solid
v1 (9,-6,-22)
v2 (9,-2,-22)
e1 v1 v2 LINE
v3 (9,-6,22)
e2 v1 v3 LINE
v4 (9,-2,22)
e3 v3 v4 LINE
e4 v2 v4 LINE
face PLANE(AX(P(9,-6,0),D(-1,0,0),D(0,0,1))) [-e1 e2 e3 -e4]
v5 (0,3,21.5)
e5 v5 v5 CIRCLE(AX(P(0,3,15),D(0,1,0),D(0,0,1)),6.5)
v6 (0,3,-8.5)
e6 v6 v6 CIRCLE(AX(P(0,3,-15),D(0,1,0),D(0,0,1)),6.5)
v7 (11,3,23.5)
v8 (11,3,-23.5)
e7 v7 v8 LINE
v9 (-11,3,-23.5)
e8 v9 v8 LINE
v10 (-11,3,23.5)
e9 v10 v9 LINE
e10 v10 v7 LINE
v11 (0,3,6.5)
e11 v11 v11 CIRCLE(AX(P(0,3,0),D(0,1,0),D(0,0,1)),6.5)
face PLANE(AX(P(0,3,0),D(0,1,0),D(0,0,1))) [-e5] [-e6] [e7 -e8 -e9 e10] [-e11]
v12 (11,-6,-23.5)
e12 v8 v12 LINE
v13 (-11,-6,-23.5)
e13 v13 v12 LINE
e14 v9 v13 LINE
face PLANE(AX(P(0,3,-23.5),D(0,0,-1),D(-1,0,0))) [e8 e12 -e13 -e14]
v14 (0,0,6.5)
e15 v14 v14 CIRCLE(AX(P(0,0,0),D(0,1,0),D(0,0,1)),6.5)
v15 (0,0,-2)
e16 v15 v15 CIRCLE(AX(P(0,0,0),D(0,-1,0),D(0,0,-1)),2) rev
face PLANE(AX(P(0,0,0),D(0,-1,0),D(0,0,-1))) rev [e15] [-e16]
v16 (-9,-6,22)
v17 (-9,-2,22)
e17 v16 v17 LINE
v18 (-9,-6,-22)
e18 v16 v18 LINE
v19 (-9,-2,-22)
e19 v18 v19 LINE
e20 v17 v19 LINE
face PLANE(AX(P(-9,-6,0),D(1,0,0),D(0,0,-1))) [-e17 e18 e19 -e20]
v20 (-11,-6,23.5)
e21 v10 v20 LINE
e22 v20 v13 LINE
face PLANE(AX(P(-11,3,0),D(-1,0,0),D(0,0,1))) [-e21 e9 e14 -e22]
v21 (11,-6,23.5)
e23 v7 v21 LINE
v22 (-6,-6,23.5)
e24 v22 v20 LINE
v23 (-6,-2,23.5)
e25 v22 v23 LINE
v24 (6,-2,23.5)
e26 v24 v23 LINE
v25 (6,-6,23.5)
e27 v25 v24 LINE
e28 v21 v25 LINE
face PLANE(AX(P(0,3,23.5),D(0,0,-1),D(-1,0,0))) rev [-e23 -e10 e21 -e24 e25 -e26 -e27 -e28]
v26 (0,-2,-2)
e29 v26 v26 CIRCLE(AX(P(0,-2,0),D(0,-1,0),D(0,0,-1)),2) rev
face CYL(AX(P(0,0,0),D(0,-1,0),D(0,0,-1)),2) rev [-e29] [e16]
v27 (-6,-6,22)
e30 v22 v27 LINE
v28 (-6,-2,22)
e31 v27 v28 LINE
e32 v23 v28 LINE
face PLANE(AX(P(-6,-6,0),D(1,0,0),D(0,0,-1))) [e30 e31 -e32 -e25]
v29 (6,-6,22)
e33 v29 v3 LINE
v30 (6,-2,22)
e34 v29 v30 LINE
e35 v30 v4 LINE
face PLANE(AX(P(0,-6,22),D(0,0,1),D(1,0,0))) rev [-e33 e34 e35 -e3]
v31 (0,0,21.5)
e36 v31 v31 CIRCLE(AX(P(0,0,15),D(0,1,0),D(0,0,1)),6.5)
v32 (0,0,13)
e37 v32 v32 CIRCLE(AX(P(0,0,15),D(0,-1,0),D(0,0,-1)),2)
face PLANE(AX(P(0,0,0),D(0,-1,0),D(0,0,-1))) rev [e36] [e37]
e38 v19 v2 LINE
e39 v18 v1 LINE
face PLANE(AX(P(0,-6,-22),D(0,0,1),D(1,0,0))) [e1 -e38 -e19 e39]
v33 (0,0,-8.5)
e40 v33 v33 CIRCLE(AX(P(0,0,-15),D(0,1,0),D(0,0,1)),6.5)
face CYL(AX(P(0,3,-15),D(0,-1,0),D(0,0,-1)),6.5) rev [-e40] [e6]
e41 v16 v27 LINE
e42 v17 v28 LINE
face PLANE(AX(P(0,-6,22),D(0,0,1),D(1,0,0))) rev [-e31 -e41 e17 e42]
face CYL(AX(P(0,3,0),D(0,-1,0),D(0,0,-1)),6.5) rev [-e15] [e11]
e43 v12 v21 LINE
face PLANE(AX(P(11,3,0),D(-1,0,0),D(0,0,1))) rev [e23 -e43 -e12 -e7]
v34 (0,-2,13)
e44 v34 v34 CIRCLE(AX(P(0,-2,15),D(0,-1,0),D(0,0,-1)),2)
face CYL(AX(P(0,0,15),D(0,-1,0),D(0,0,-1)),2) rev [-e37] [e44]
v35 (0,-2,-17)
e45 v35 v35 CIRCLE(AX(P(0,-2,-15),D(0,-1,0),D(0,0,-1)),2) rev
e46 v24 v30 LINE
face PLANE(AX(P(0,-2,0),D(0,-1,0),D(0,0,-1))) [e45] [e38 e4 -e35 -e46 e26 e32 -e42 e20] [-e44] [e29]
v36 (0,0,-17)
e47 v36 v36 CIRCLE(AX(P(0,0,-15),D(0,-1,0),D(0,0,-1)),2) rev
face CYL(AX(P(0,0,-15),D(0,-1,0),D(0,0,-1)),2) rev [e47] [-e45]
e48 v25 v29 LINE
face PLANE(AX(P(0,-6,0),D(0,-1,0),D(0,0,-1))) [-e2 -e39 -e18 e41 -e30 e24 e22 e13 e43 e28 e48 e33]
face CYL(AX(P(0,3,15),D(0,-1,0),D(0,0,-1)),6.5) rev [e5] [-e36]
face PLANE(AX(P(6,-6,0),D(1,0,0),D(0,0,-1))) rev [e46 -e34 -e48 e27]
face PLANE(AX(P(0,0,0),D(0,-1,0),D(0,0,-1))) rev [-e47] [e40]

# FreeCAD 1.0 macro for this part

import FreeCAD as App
import Part
import Sketcher
from FreeCAD import Vector


def add_polygon(sketch, points):
    """Adds a closed chain of lines whose ends are joined by coincident constraints."""
    first, n = sketch.GeometryCount, len(points)
    for a, b in zip(points, points[1:] + points[:1]):
        sketch.addGeometry(Part.LineSegment(App.Vector(*a, 0), App.Vector(*b, 0)), False)
    for i in range(n):
        sketch.addConstraint(Sketcher.Constraint("Coincident", first + i, 2, first + (i + 1) % n, 1))

doc = App.newDocument("Part")
body = doc.addObject("PartDesign::Body", "Body")

# Sketch on XZ plane
sketch1 = doc.addObject("Sketcher::SketchObject", "Sketch")
body.addObject(sketch1)
sketch1.AttachmentSupport = (doc.XZ_Plane, [""])
sketch1.MapMode = "FlatFace"
add_polygon(sketch1, [(-11, -23.5), (-11, 23.5), (11, 23.5), (11, -23.5)])  # lines 0-3
sketch1.addGeometry(Part.Circle(Vector(0, 15, 0), Vector(0, 0, 1), 6.5), False)  # 4
sketch1.addGeometry(Part.Circle(Vector(0, 0, 0), Vector(0, 0, 1), 6.5), False)  # 5
sketch1.addGeometry(Part.Circle(Vector(0, -15, 0), Vector(0, 0, 1), 6.5), False)  # 6
sketch1.addConstraint([
    Sketcher.Constraint("Vertical", 0),
    Sketcher.Constraint("Horizontal", 1),
    Sketcher.Constraint("Vertical", 2),
    Sketcher.Constraint("Horizontal", 3),
    Sketcher.Constraint("Coincident", 5, 3, -1, 1),
    Sketcher.Constraint("Equal", 4, 5),
    Sketcher.Constraint("Equal", 5, 6),
    Sketcher.Constraint("Symmetric", 4, 3, 6, 3, -1, 1),
    Sketcher.Constraint("Symmetric", 0, 2, 2, 2, -1, 1),
    Sketcher.Constraint("PointOnObject", 4, 3, -2),
    Sketcher.Constraint("Diameter", 4, 13.0),
    Sketcher.Constraint("DistanceX", 1, 1, 1, 2, 22.0),
    Sketcher.Constraint("DistanceY", 0, 1, 0, 2, 47.0),
    Sketcher.Constraint("DistanceY", -1, 1, 4, 3, 15.0),
])
pad1 = doc.addObject("PartDesign::Pad", "Pad")
body.addObject(pad1)
pad1.Profile = sketch1
pad1.Length = 3
pad1.Reversed = True

# Sketch on XZ plane
sketch2 = doc.addObject("Sketcher::SketchObject", "Sketch001")
body.addObject(sketch2)
sketch2.AttachmentSupport = (doc.XZ_Plane, [""])
sketch2.MapMode = "FlatFace"
add_polygon(sketch2, [(-11, 23.5), (-11, -23.5), (11, -23.5), (11, 23.5)])  # lines 0-3
sketch2.addConstraint([
    Sketcher.Constraint("Vertical", 0),
    Sketcher.Constraint("Horizontal", 1),
    Sketcher.Constraint("Vertical", 2),
    Sketcher.Constraint("Horizontal", 3),
    Sketcher.Constraint("Symmetric", 0, 2, 2, 2, -1, 1),
    Sketcher.Constraint("DistanceX", 1, 1, 1, 2, 22.0),
    Sketcher.Constraint("DistanceY", 0, 2, 0, 1, 47.0),
])
pad2 = doc.addObject("PartDesign::Pad", "Pad001")
body.addObject(pad2)
pad2.Profile = sketch2
pad2.Length = 2

# Sketch on XZ plane
sketch3 = doc.addObject("Sketcher::SketchObject", "Sketch002")
body.addObject(sketch3)
sketch3.AttachmentSupport = (doc.XZ_Plane, [""])
sketch3.MapMode = "FlatFace"
sketch3.AttachmentOffset = App.Placement(Vector(0, 0, 2), App.Rotation())
add_polygon(sketch3, [(-9, -22), (-9, 23.5), (-11, 23.5), (-11, -23.5), (11, -23.5), (11, 23.5), (9, 23.5), (9, -22)])  # lines 0-7
sketch3.addConstraint([
    Sketcher.Constraint("Vertical", 0),
    Sketcher.Constraint("Horizontal", 1),
    Sketcher.Constraint("Vertical", 2),
    Sketcher.Constraint("Horizontal", 3),
    Sketcher.Constraint("Vertical", 4),
    Sketcher.Constraint("Horizontal", 5),
    Sketcher.Constraint("Vertical", 6),
    Sketcher.Constraint("Horizontal", 7),
    Sketcher.Constraint("Symmetric", 1, 2, 3, 2, -1, 1),
    Sketcher.Constraint("Symmetric", 0, 2, 5, 2, -2),
    Sketcher.Constraint("DistanceX", 1, 2, 1, 1, 2.0),
    Sketcher.Constraint("DistanceX", 3, 1, 3, 2, 22.0),
    Sketcher.Constraint("DistanceY", 2, 2, 2, 1, 47.0),
    Sketcher.Constraint("DistanceY", 0, 1, 0, 2, 45.5),
])
pad3 = doc.addObject("PartDesign::Pad", "Pad002")
body.addObject(pad3)
pad3.Profile = sketch3
pad3.Length = 4

# Sketch on XZ plane
sketch4 = doc.addObject("Sketcher::SketchObject", "Sketch003")
body.addObject(sketch4)
sketch4.AttachmentSupport = (doc.XZ_Plane, [""])
sketch4.MapMode = "FlatFace"
sketch4.AttachmentOffset = App.Placement(Vector(0, 0, 2), App.Rotation())
sketch4.addGeometry(Part.Circle(Vector(0, 0, 0), Vector(0, 0, 1), 2), False)
sketch4.addConstraint([
    Sketcher.Constraint("Coincident", 0, 3, -1, 1),
    Sketcher.Constraint("Diameter", 0, 4.0),
])
pad4 = doc.addObject("PartDesign::Pad", "Pad003")
body.addObject(pad4)
pad4.Profile = sketch4
pad4.Length = 1
pad4.Reversed = True

# Sketch on XZ plane
sketch5 = doc.addObject("Sketcher::SketchObject", "Sketch004")
body.addObject(sketch5)
sketch5.AttachmentSupport = (doc.XZ_Plane, [""])
sketch5.MapMode = "FlatFace"
sketch5.AttachmentOffset = App.Placement(Vector(0, 0, 2), App.Rotation())
sketch5.addGeometry([
    Part.Circle(Vector(0, 0, 0), Vector(0, 0, 1), 2),
    Part.Circle(Vector(0, 15, 0), Vector(0, 0, 1), 2),
    Part.Circle(Vector(0, -15, 0), Vector(0, 0, 1), 2),
], False)
sketch5.addConstraint([
    Sketcher.Constraint("Coincident", 0, 3, -1, 1),
    Sketcher.Constraint("Equal", 0, 1),
    Sketcher.Constraint("Equal", 1, 2),
    Sketcher.Constraint("Symmetric", 1, 3, 2, 3, -1, 1),
    Sketcher.Constraint("PointOnObject", 1, 3, -2),
    Sketcher.Constraint("Diameter", 0, 4.0),
    Sketcher.Constraint("DistanceY", -1, 1, 1, 3, 15.0),
])
pocket1 = doc.addObject("PartDesign::Pocket", "Pocket")
body.addObject(pocket1)
pocket1.Profile = sketch5
pocket1.Length = 2

# Sketch on XZ plane
sketch6 = doc.addObject("Sketcher::SketchObject", "Sketch005")
body.addObject(sketch6)
sketch6.AttachmentSupport = (doc.XZ_Plane, [""])
sketch6.MapMode = "FlatFace"
sketch6.AttachmentOffset = App.Placement(Vector(0, 0, 2), App.Rotation())
add_polygon(sketch6, [(-6, 22), (-6, 23.5), (-9, 23.5), (-9, 22)])  # lines 0-3
add_polygon(sketch6, [(9, 22), (9, 23.5), (6, 23.5), (6, 22)])  # lines 4-7
sketch6.addConstraint([
    Sketcher.Constraint("Vertical", 0),
    Sketcher.Constraint("Horizontal", 1),
    Sketcher.Constraint("Vertical", 2),
    Sketcher.Constraint("Horizontal", 3),
    Sketcher.Constraint("Vertical", 4),
    Sketcher.Constraint("Horizontal", 5),
    Sketcher.Constraint("Vertical", 6),
    Sketcher.Constraint("Horizontal", 7),
    Sketcher.Constraint("Symmetric", 1, 2, 4, 2, -2),
    Sketcher.Constraint("Symmetric", 3, 2, 6, 2, -2),
    Sketcher.Constraint("DistanceX", 1, 2, 1, 1, 3.0),
    Sketcher.Constraint("DistanceY", 0, 1, 0, 2, 1.5),
    Sketcher.Constraint("DistanceX", 0, 2, -1, 1, 6.0),
    Sketcher.Constraint("DistanceY", -1, 1, 2, 2, 22.0),
])
pad5 = doc.addObject("PartDesign::Pad", "Pad004")
body.addObject(pad5)
pad5.Profile = sketch6
pad5.Length = 4

doc.recompute()
